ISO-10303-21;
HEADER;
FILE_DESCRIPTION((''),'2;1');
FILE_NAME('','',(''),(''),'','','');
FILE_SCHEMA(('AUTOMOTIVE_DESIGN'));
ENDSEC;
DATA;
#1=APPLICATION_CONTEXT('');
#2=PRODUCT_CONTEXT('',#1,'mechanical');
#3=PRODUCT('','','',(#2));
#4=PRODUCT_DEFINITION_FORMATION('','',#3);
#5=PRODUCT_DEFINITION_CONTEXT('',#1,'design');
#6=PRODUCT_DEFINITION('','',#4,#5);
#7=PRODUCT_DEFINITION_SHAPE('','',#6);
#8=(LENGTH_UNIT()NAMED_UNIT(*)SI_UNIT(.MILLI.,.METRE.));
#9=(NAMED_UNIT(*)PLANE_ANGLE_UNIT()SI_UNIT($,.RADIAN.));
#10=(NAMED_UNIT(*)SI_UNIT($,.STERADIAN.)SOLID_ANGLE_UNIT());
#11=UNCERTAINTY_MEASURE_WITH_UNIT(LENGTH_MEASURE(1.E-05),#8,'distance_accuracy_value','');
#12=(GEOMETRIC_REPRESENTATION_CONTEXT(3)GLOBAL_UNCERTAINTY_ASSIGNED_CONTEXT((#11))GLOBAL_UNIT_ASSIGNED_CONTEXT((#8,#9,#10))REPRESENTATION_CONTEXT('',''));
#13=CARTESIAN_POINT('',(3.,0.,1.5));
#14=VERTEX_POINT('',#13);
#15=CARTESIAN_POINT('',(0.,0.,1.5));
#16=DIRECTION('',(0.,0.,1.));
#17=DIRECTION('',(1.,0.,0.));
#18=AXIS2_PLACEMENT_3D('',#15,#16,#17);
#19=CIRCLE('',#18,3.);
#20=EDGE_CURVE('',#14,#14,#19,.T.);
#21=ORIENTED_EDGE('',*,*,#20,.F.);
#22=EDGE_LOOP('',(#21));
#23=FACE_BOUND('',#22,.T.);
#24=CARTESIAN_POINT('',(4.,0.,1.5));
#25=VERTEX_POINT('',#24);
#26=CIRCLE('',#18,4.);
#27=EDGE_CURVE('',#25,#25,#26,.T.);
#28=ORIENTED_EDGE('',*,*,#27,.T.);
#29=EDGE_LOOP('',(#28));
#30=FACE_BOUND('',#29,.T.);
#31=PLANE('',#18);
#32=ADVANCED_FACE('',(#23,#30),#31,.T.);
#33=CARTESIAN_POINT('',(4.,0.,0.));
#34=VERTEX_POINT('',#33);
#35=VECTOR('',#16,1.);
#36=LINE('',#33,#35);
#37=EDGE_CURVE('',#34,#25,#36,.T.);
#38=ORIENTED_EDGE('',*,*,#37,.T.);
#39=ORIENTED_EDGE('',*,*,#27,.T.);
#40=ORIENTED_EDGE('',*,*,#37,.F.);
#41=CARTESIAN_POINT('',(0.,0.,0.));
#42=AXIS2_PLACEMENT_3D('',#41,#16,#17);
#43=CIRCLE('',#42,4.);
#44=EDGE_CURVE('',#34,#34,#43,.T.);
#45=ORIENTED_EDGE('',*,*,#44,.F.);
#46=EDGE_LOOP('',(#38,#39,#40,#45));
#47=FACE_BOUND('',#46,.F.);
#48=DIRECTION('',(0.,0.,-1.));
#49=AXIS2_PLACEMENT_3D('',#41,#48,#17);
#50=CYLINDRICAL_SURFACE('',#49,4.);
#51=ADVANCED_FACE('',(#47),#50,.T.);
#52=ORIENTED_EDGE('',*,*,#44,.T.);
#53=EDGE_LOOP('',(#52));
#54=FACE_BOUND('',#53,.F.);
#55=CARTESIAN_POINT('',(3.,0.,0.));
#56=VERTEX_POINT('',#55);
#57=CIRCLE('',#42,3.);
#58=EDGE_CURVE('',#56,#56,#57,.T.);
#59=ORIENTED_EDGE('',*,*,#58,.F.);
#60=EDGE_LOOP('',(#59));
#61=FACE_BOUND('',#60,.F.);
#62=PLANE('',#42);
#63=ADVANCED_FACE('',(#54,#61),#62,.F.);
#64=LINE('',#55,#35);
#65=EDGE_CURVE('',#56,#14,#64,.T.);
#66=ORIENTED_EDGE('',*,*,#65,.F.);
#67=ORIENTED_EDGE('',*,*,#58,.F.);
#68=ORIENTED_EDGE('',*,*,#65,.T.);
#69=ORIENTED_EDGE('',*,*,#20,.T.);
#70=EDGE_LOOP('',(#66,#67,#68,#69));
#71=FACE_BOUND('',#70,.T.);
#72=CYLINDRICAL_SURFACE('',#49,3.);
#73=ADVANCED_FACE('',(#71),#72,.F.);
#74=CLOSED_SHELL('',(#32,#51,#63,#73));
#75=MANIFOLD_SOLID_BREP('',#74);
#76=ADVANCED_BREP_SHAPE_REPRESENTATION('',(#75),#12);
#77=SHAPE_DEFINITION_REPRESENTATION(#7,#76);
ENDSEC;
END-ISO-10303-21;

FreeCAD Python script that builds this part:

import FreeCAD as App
import Part
import Sketcher

V = App.Vector
Q = App.Units.Quantity

doc = App.newDocument("Part")
params = doc.addObject("Spreadsheet::Sheet", "Params")
for row, (alias, value) in enumerate([
    ("sketch1_diameter", "8 mm"),
    ("sketch1_diameter2", "6 mm"),
    ("pad1_length", "1.5 mm"),
], start=1):
    params.set(f"A{row}", alias)
    params.set(f"B{row}", "=" + value)
    params.setAlias(f"B{row}", alias)

body = doc.addObject("PartDesign::Body", "Body")

# Sketch on XY plane
sketch1 = doc.addObject("Sketcher::SketchObject", "Sketch")
body.addObject(sketch1)
sketch1.AttachmentSupport = (doc.XY_Plane, [""])
sketch1.MapMode = "FlatFace"
sketch1.addGeometry(Part.Circle(V(0, 0, 0), V(0, 0, 1), 4), False)
sketch1.addGeometry(Part.Circle(V(0, 0, 0), V(0, 0, 1), 3), False)
sketch1.addConstraint(Sketcher.Constraint("Coincident", 0, 3, -1, 1))
sketch1.addConstraint(Sketcher.Constraint("Coincident", 1, 3, -1, 1))
sketch1.addConstraint(Sketcher.Constraint("Diameter", 0, Q("8 mm")))
sketch1.addConstraint(Sketcher.Constraint("Diameter", 1, Q("6 mm")))
sketch1.setExpression("Constraints[2]", "Params.sketch1_diameter")
sketch1.setExpression("Constraints[3]", "Params.sketch1_diameter2")
pad1 = doc.addObject("PartDesign::Pad", "Pad")
body.addObject(pad1)
pad1.Profile = sketch1
pad1.setExpression("Length", "Params.pad1_length")

doc.recompute()
